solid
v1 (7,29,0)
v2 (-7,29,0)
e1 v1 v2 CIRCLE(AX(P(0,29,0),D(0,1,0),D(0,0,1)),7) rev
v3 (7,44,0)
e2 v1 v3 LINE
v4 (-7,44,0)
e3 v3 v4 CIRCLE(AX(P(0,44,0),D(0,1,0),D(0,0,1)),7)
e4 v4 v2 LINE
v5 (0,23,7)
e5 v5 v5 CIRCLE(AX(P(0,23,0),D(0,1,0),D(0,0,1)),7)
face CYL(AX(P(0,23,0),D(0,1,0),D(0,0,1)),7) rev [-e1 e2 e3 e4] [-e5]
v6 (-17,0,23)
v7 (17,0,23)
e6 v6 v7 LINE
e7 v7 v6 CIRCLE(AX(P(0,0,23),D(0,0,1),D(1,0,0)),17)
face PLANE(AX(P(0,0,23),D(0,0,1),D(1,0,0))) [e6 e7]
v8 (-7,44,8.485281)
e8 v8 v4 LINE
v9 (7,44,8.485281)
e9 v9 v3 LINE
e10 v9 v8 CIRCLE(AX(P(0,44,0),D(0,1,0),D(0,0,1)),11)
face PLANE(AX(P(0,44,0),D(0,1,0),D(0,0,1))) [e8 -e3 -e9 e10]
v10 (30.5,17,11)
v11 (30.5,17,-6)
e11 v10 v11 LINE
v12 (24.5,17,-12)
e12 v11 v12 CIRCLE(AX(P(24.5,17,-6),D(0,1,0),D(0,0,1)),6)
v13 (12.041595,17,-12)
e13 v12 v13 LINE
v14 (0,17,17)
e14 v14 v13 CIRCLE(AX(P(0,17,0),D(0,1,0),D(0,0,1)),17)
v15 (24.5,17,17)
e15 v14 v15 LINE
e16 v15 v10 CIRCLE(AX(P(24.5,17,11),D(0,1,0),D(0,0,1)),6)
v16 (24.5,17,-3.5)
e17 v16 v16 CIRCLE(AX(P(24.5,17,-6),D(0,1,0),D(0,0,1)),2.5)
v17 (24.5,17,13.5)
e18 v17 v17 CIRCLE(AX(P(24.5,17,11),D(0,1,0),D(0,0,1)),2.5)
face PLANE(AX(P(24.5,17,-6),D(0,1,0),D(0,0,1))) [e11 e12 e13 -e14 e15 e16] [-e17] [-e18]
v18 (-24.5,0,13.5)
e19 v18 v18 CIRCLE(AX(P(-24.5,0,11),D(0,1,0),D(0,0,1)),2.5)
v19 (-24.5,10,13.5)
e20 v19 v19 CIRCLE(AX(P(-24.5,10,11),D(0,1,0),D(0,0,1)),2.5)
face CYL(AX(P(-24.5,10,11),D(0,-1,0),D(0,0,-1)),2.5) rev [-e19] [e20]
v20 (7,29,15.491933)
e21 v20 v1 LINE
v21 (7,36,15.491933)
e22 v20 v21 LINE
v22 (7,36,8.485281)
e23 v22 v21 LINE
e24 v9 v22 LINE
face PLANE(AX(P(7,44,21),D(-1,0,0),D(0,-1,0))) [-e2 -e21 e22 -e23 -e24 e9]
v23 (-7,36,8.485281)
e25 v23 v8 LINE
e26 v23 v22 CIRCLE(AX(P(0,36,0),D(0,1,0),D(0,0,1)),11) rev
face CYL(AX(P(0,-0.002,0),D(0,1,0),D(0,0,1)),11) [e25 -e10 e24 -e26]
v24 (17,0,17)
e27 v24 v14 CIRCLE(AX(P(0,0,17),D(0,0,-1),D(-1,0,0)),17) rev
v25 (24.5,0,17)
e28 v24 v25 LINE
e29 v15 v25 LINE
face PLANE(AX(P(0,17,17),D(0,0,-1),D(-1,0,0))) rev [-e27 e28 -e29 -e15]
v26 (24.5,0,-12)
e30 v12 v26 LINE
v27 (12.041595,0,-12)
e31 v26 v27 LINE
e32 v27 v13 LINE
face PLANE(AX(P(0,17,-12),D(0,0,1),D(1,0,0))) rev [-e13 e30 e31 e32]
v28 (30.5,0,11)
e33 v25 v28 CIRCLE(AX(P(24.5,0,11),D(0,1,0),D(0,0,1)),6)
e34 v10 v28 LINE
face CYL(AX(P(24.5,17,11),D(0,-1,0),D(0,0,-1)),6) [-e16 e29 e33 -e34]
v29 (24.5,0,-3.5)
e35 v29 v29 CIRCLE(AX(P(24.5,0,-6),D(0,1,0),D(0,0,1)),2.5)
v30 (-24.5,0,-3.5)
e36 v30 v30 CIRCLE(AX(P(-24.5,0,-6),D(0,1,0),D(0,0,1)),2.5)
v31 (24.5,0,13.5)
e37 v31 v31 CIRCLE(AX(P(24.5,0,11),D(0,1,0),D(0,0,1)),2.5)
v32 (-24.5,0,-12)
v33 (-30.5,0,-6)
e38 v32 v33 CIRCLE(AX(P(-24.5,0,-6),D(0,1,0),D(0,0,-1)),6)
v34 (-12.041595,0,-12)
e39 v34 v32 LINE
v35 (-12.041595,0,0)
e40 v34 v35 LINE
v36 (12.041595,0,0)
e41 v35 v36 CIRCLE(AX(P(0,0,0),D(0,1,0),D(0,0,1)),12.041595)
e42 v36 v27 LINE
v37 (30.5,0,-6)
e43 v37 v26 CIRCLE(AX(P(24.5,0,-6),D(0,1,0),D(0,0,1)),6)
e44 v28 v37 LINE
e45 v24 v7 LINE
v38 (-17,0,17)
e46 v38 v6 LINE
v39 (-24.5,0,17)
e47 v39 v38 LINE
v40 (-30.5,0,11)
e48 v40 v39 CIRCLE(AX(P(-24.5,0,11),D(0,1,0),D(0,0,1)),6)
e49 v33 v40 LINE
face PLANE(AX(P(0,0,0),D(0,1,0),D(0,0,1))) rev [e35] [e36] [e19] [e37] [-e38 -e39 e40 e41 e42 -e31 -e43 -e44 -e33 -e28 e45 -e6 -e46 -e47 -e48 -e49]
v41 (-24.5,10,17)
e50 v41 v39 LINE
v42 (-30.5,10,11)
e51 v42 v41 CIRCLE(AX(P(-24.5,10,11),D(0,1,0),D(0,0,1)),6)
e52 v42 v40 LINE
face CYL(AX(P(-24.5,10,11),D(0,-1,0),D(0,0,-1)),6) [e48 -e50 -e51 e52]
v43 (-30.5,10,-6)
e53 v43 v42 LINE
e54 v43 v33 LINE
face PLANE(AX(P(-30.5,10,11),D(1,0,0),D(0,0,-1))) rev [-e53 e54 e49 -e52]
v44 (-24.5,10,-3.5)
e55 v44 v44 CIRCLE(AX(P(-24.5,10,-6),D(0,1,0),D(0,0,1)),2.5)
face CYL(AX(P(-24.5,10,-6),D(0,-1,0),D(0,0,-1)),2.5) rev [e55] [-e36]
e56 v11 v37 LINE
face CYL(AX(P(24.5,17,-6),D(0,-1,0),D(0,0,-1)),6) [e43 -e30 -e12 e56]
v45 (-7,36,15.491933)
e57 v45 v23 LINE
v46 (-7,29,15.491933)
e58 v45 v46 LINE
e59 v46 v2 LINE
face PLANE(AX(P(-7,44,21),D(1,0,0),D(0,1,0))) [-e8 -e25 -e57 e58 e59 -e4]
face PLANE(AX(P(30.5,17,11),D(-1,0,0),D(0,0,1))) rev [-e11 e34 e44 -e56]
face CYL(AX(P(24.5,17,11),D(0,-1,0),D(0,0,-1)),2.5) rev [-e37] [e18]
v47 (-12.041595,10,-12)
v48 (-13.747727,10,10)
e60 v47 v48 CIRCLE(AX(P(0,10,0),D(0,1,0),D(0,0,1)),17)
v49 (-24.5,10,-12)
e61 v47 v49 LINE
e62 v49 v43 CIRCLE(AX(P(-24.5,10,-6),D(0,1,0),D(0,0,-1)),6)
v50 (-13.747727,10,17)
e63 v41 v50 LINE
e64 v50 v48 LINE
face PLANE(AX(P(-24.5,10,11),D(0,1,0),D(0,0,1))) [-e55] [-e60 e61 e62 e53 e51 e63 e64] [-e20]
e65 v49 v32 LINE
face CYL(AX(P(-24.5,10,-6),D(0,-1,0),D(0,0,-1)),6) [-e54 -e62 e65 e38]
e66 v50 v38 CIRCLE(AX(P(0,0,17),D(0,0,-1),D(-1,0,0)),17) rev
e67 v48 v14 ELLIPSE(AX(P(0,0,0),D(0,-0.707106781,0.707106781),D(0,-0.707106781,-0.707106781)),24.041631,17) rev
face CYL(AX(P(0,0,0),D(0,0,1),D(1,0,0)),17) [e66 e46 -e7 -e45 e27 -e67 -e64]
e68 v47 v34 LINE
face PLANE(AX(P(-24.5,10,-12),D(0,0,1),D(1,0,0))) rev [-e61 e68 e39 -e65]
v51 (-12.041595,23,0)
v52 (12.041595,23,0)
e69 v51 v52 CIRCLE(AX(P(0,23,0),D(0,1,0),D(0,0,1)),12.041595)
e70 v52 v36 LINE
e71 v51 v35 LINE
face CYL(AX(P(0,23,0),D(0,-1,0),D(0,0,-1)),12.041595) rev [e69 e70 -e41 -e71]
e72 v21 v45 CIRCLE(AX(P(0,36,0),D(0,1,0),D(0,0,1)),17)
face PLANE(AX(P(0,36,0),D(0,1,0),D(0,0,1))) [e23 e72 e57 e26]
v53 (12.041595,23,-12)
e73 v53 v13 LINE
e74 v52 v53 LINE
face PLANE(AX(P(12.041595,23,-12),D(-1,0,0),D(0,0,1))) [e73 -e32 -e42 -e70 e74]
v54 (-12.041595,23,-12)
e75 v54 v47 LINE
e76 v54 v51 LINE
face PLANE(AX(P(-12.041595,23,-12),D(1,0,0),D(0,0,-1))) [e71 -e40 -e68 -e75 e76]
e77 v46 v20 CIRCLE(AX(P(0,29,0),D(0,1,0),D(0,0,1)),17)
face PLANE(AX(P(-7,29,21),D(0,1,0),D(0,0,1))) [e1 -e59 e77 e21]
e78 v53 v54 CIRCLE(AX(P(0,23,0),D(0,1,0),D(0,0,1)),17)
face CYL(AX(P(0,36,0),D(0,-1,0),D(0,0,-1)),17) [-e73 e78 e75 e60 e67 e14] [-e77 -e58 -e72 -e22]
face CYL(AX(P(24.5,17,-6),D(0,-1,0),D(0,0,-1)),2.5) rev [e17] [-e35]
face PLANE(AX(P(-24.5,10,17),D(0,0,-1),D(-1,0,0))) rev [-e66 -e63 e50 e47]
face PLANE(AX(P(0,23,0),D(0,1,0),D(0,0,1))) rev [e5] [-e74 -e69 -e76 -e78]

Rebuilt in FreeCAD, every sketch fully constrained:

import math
import FreeCAD as App
import Part
import Sketcher
Q = App.Units.Quantity

doc = App.newDocument("Part")
params = doc.addObject("Spreadsheet::Sheet", "Params")
for row, (alias, value) in enumerate([
    ("sketch1_diameter", "34 mm"),
    ("pad1_length", "36 mm"),
    ("sketch2_diameter", "22 mm"),
    ("sketch3_diameter", "14 mm"),
    ("pocket1_length", "21 mm"),
    ("sketch4_width", "14 mm"),
    ("sketch4_height", "15 mm"),
    ("pocket2_length", "21 mm"),
    ("sketch5_radius", "17 mm"),
    ("pad3_length", "23 mm"),
    ("sketch6_diameter", "5 mm"),
    ("sketch6_radius", "6 mm"),
    ("sketch6_height", "29 mm"),
    ("sketch6_width", "24.5 mm"),
    ("pad4_length", "17 mm"),
    ("sketch7_diameter", "5 mm"),
    ("sketch7_radius", "6 mm"),
    ("sketch7_height", "29 mm"),
    ("sketch7_width", "24.5 mm"),
    ("pad5_length", "10 mm"),
    ("sketch8_radius", "17 mm"),
    ("sketch8_height", "12 mm"),
    ("pocket3_length", "23 mm"),
], start=1):
    params.set(f"A{row}", alias)
    params.set(f"B{row}", "=" + value)
    params.setAlias(f"B{row}", alias)

body = doc.addObject("PartDesign::Body", "Body")

sketch1 = body.newObject("Sketcher::SketchObject", "Sketch")
sketch1.AttachmentSupport = (doc.getObject("XZ_Plane"), [""])
sketch1.MapMode = "FlatFace"
sketch1.addGeometry(Part.Circle(App.Vector(0, 0, 0), App.Vector(0, 0, 1), 17), False)
sketch1.addConstraint([
    Sketcher.Constraint("Coincident", 0, 3, -1, 1),
    Sketcher.Constraint("Diameter", 0, Q("34 mm")),
])
sketch1.setExpression("Constraints[1]", "Params.sketch1_diameter")
pad1 = body.newObject("PartDesign::Pad", "Pad")
pad1.Profile = sketch1
pad1.setExpression("Length", "Params.pad1_length")
pad1.Reversed = True

sketch2 = body.newObject("Sketcher::SketchObject", "Sketch001")
sketch2.AttachmentSupport = (doc.getObject("XZ_Plane"), [""])
sketch2.MapMode = "FlatFace"
sketch2.AttachmentOffset = App.Placement(App.Vector(0, 0, -44), App.Rotation())
sketch2.addGeometry(Part.Circle(App.Vector(0, 0, 0), App.Vector(0, 0, 1), 11), False)
sketch2.addConstraint([
    Sketcher.Constraint("Coincident", 0, 3, -1, 1),
    Sketcher.Constraint("Diameter", 0, Q("22 mm")),
])
sketch2.setExpression("Constraints[1]", "Params.sketch2_diameter")
pad2 = body.newObject("PartDesign::Pad", "Pad001")
pad2.Profile = sketch2
pad2.Type = "UpToFirst"

sketch3 = body.newObject("Sketcher::SketchObject", "Sketch002")
sketch3.AttachmentSupport = (doc.getObject("XZ_Plane"), [""])
sketch3.MapMode = "FlatFace"
sketch3.AttachmentOffset = App.Placement(App.Vector(0, 0, -44), App.Rotation())
sketch3.addGeometry(Part.Circle(App.Vector(0, 0, 0), App.Vector(0, 0, 1), 7), False)
sketch3.addConstraint([
    Sketcher.Constraint("Coincident", 0, 3, -1, 1),
    Sketcher.Constraint("Diameter", 0, Q("14 mm")),
])
sketch3.setExpression("Constraints[1]", "Params.sketch3_diameter")
pocket1 = body.newObject("PartDesign::Pocket", "Pocket")
pocket1.Profile = sketch3
pocket1.setExpression("Length", "Params.pocket1_length")
pocket1.Reversed = True

sketch4 = body.newObject("Sketcher::SketchObject", "Sketch003")
sketch4.AttachmentSupport = (doc.getObject("XY_Plane"), [""])
sketch4.MapMode = "FlatFace"
sketch4.addGeometry([
    Part.LineSegment(App.Vector(-7, 44, 0), App.Vector(-7, 29, 0)),
    Part.LineSegment(App.Vector(-7, 29, 0), App.Vector(7, 29, 0)),
    Part.LineSegment(App.Vector(7, 29, 0), App.Vector(7, 44, 0)),
    Part.LineSegment(App.Vector(7, 44, 0), App.Vector(-7, 44, 0)),
], False)
sketch4.addConstraint([
    Sketcher.Constraint("Coincident", 0, 2, 1, 1),
    Sketcher.Constraint("Coincident", 1, 2, 2, 1),
    Sketcher.Constraint("Coincident", 2, 2, 3, 1),
    Sketcher.Constraint("Coincident", 3, 2, 0, 1),
    Sketcher.Constraint("Vertical", 0),
    Sketcher.Constraint("Horizontal", 1),
    Sketcher.Constraint("Vertical", 2),
    Sketcher.Constraint("Horizontal", 3),
    Sketcher.Constraint("DistanceX", 1, 1, 1, 2, Q("14 mm")),
    Sketcher.Constraint("DistanceY", 0, 2, 0, 1, Q("15 mm")),
    Sketcher.Constraint("DistanceX", 0, 2, -1, 1, Q("7 mm")),
    Sketcher.Constraint("DistanceY", -1, 1, 0, 2, Q("29 mm")),
])
sketch4.setExpression("Constraints[8]", "Params.sketch4_width")
sketch4.setExpression("Constraints[9]", "Params.sketch4_height")
pocket2 = body.newObject("PartDesign::Pocket", "Pocket001")
pocket2.Profile = sketch4
pocket2.setExpression("Length", "Params.pocket2_length")
pocket2.Reversed = True

sketch5 = body.newObject("Sketcher::SketchObject", "Sketch004")
sketch5.AttachmentSupport = (doc.getObject("XY_Plane"), [""])
sketch5.MapMode = "FlatFace"
sketch5.AttachmentOffset = App.Placement(App.Vector(0, 0, 23), App.Rotation())
sketch5.addGeometry([
    Part.LineSegment(App.Vector(-17, 0, 0), App.Vector(17, 0, 0)),
    Part.ArcOfCircle(Part.Circle(App.Vector(0, 0, 0), App.Vector(0, 0, 1), 17), math.radians(0), math.radians(180)),
], False)
sketch5.addConstraint([
    Sketcher.Constraint("Coincident", 0, 1, 1, 2),
    Sketcher.Constraint("Coincident", 1, 1, 0, 2),
    Sketcher.Constraint("Horizontal", 0),
    Sketcher.Constraint("Coincident", 1, 3, -1, 1),
    Sketcher.Constraint("PointOnObject", 0, 1, -1),
    Sketcher.Constraint("Radius", 1, Q("17 mm")),
])
sketch5.setExpression("Constraints[5]", "Params.sketch5_radius")
pad3 = body.newObject("PartDesign::Pad", "Pad002")
pad3.Profile = sketch5
pad3.setExpression("Length", "Params.pad3_length")
pad3.Reversed = True

sketch6 = body.newObject("Sketcher::SketchObject", "Sketch005")
sketch6.AttachmentSupport = (doc.getObject("XZ_Plane"), [""])
sketch6.MapMode = "FlatFace"
sketch6.addGeometry([
    Part.LineSegment(App.Vector(0, -12, 0), App.Vector(0, 17, 0)),
    Part.LineSegment(App.Vector(0, 17, 0), App.Vector(24.5, 17, 0)),
    Part.ArcOfCircle(Part.Circle(App.Vector(24.5, 11, 0), App.Vector(0, 0, 1), 6), math.radians(0), math.radians(90)),
    Part.LineSegment(App.Vector(30.5, 11, 0), App.Vector(30.5, -6, 0)),
    Part.ArcOfCircle(Part.Circle(App.Vector(24.5, -6, 0), App.Vector(0, 0, 1), 6), math.radians(-90), math.radians(0)),
    Part.LineSegment(App.Vector(24.5, -12, 0), App.Vector(0, -12, 0)),
    Part.Circle(App.Vector(24.5, 11, 0), App.Vector(0, 0, 1), 2.5),
    Part.Circle(App.Vector(24.5, -6, 0), App.Vector(0, 0, 1), 2.5),
], False)
sketch6.addConstraint([
    Sketcher.Constraint("Coincident", 0, 2, 1, 1),
    Sketcher.Constraint("Tangent", 1, 2, 2, 2),
    Sketcher.Constraint("Tangent", 2, 1, 3, 1),
    Sketcher.Constraint("Tangent", 3, 2, 4, 2),
    Sketcher.Constraint("Tangent", 4, 1, 5, 1),
    Sketcher.Constraint("Coincident", 5, 2, 0, 1),
    Sketcher.Constraint("Vertical", 0),
    Sketcher.Constraint("Horizontal", 1),
    Sketcher.Constraint("Vertical", 3),
    Sketcher.Constraint("Horizontal", 5),
    Sketcher.Constraint("Coincident", 6, 3, 2, 3),
    Sketcher.Constraint("Coincident", 7, 3, 4, 3),
    Sketcher.Constraint("Equal", 2, 4),
    Sketcher.Constraint("Equal", 6, 7),
    Sketcher.Constraint("PointOnObject", 0, 2, -2),
    Sketcher.Constraint("Diameter", 6, Q("5 mm")),
    Sketcher.Constraint("Radius", 2, Q("6 mm")),
    Sketcher.Constraint("DistanceY", 0, 1, 0, 2, Q("29 mm")),
    Sketcher.Constraint("DistanceX", 1, 1, 1, 2, Q("24.5 mm")),
    Sketcher.Constraint("DistanceY", -1, 1, 2, 3, Q("11 mm")),
])
sketch6.setExpression("Constraints[15]", "Params.sketch6_diameter")
sketch6.setExpression("Constraints[16]", "Params.sketch6_radius")
sketch6.setExpression("Constraints[17]", "Params.sketch6_height")
sketch6.setExpression("Constraints[18]", "Params.sketch6_width")
pad4 = body.newObject("PartDesign::Pad", "Pad003")
pad4.Profile = sketch6
pad4.setExpression("Length", "Params.pad4_length")
pad4.Reversed = True

sketch7 = body.newObject("Sketcher::SketchObject", "Sketch006")
sketch7.AttachmentSupport = (doc.getObject("XZ_Plane"), [""])
sketch7.MapMode = "FlatFace"
sketch7.addGeometry([
    Part.LineSegment(App.Vector(0, 17, 0), App.Vector(0, -12, 0)),
    Part.LineSegment(App.Vector(0, -12, 0), App.Vector(-24.5, -12, 0)),
    Part.ArcOfCircle(Part.Circle(App.Vector(-24.5, -6, 0), App.Vector(0, 0, 1), 6), math.radians(180), math.radians(270)),
    Part.LineSegment(App.Vector(-30.5, -6, 0), App.Vector(-30.5, 11, 0)),
    Part.ArcOfCircle(Part.Circle(App.Vector(-24.5, 11, 0), App.Vector(0, 0, 1), 6), math.radians(90), math.radians(180)),
    Part.LineSegment(App.Vector(-24.5, 17, 0), App.Vector(0, 17, 0)),
    Part.Circle(App.Vector(-24.5, 11, 0), App.Vector(0, 0, 1), 2.5),
    Part.Circle(App.Vector(-24.5, -6, 0), App.Vector(0, 0, 1), 2.5),
], False)
sketch7.addConstraint([
    Sketcher.Constraint("Coincident", 0, 2, 1, 1),
    Sketcher.Constraint("Tangent", 1, 2, 2, 2),
    Sketcher.Constraint("Tangent", 2, 1, 3, 1),
    Sketcher.Constraint("Tangent", 3, 2, 4, 2),
    Sketcher.Constraint("Tangent", 4, 1, 5, 1),
    Sketcher.Constraint("Coincident", 5, 2, 0, 1),
    Sketcher.Constraint("Vertical", 0),
    Sketcher.Constraint("Horizontal", 1),
    Sketcher.Constraint("Vertical", 3),
    Sketcher.Constraint("Horizontal", 5),
    Sketcher.Constraint("Coincident", 6, 3, 4, 3),
    Sketcher.Constraint("Coincident", 7, 3, 2, 3),
    Sketcher.Constraint("Equal", 2, 4),
    Sketcher.Constraint("Equal", 6, 7),
    Sketcher.Constraint("PointOnObject", 0, 2, -2),
    Sketcher.Constraint("Diameter", 6, Q("5 mm")),
    Sketcher.Constraint("Radius", 2, Q("6 mm")),
    Sketcher.Constraint("DistanceY", 0, 2, 0, 1, Q("29 mm")),
    Sketcher.Constraint("DistanceX", 1, 2, 1, 1, Q("24.5 mm")),
    Sketcher.Constraint("DistanceY", 2, 3, -1, 1, Q("6 mm")),
])
sketch7.setExpression("Constraints[15]", "Params.sketch7_diameter")
sketch7.setExpression("Constraints[16]", "Params.sketch7_radius")
sketch7.setExpression("Constraints[17]", "Params.sketch7_height")
sketch7.setExpression("Constraints[18]", "Params.sketch7_width")
pad5 = body.newObject("PartDesign::Pad", "Pad004")
pad5.Profile = sketch7
pad5.setExpression("Length", "Params.pad5_length")
pad5.Reversed = True

sketch8 = body.newObject("Sketcher::SketchObject", "Sketch007")
sketch8.AttachmentSupport = (doc.getObject("XZ_Plane"), [""])
sketch8.MapMode = "FlatFace"
sketch8.addGeometry([
    Part.LineSegment(App.Vector(-12, -12, 0), App.Vector(-12, 0, 0)),
    Part.ArcOfCircle(Part.Circle(App.Vector(0, 0, 0), App.Vector(0, 0, 1), 12), math.radians(0), math.radians(180)),
    Part.LineSegment(App.Vector(12, 0, 0), App.Vector(12, -12, 0)),
    Part.ArcOfCircle(Part.Circle(App.Vector(0, 0, 0), App.Vector(0, 0, 1), 17), math.radians(-135), math.radians(-45)),
], False)
sketch8.addConstraint([
    Sketcher.Constraint("Tangent", 0, 2, 1, 2),
    Sketcher.Constraint("Tangent", 1, 1, 2, 1),
    Sketcher.Constraint("Coincident", 2, 2, 3, 2),
    Sketcher.Constraint("Coincident", 3, 1, 0, 1),
    Sketcher.Constraint("Vertical", 0),
    Sketcher.Constraint("Vertical", 2),
    Sketcher.Constraint("Coincident", 1, 3, -1, 1),
    Sketcher.Constraint("Coincident", 3, 3, -1, 1),
    Sketcher.Constraint("Radius", 3, Q("17 mm")),
    Sketcher.Constraint("DistanceY", 0, 1, 0, 2, Q("12 mm")),
])
sketch8.setExpression("Constraints[8]", "Params.sketch8_radius")
sketch8.setExpression("Constraints[9]", "Params.sketch8_height")
pocket3 = body.newObject("PartDesign::Pocket", "Pocket002")
pocket3.Profile = sketch8
pocket3.setExpression("Length", "Params.pocket3_length")

doc.recompute()
